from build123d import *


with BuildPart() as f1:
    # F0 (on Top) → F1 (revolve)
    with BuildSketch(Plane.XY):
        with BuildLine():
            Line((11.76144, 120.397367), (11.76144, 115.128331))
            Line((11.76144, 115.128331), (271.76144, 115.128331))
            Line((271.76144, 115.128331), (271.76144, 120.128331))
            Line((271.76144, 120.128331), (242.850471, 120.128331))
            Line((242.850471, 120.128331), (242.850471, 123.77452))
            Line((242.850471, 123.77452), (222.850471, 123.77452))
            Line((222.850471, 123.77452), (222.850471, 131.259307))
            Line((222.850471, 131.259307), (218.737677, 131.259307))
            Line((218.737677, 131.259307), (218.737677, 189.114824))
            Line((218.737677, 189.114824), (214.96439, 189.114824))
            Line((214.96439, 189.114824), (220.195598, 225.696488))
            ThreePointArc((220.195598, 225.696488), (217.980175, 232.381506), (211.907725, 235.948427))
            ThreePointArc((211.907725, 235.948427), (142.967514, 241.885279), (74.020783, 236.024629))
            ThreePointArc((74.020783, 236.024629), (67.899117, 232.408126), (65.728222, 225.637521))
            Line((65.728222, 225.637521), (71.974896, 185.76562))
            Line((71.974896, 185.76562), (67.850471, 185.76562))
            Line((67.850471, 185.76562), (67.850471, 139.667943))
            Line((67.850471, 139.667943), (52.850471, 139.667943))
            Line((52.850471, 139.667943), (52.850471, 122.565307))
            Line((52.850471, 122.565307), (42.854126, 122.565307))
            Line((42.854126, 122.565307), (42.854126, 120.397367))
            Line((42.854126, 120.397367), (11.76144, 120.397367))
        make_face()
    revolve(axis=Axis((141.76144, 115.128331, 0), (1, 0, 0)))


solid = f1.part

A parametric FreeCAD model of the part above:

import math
import FreeCAD as App
import Part
import Sketcher

doc = App.newDocument("Part")
body = doc.addObject("PartDesign::Body", "Body")

# Sketch on XY plane
sketch1 = body.newObject("Sketcher::SketchObject", "Sketch")
sketch1.AttachmentSupport = (doc.getObject("XY_Plane"), [""])
sketch1.MapMode = "FlatFace"
sketch1.addGeometry(Part.LineSegment(App.Vector(11.76144, 120.397367, 0), App.Vector(11.76144, 115.128331, 0)), False)
sketch1.addGeometry(Part.LineSegment(App.Vector(11.76144, 115.128331, 0), App.Vector(271.76144, 115.128331, 0)), False)
sketch1.addGeometry(Part.LineSegment(App.Vector(271.76144, 115.128331, 0), App.Vector(271.76144, 120.128331, 0)), False)
sketch1.addGeometry(Part.LineSegment(App.Vector(271.76144, 120.128331, 0), App.Vector(242.850471, 120.128331, 0)), False)
sketch1.addGeometry(Part.LineSegment(App.Vector(242.850471, 120.128331, 0), App.Vector(242.850471, 123.77452, 0)), False)
sketch1.addGeometry(Part.LineSegment(App.Vector(242.850471, 123.77452, 0), App.Vector(222.850471, 123.77452, 0)), False)
sketch1.addGeometry(Part.LineSegment(App.Vector(222.850471, 123.77452, 0), App.Vector(222.850471, 131.259307, 0)), False)
sketch1.addGeometry(Part.LineSegment(App.Vector(222.850471, 131.259307, 0), App.Vector(218.737677, 131.259307, 0)), False)
sketch1.addGeometry(Part.LineSegment(App.Vector(218.737677, 131.259307, 0), App.Vector(218.737677, 189.114824, 0)), False)
sketch1.addGeometry(Part.LineSegment(App.Vector(218.737677, 189.114824, 0), App.Vector(214.96439, 189.114824, 0)), False)
sketch1.addGeometry(Part.LineSegment(App.Vector(214.96439, 189.114824, 0), App.Vector(220.195598, 225.696488, 0)), False)
sketch1.addGeometry(Part.ArcOfCircle(Part.Circle(App.Vector(210.20353, 226.09471, 0), App.Vector(0, 0, 1), 10.000001), math.radians(-2.28225), math.radians(80.187788)), False)
sketch1.addGeometry(Part.ArcOfCircle(Part.Circle(App.Vector(142.743225, -163.963133, 0), App.Vector(0, 0, 1), 405.848474), math.radians(80.187789), math.radians(99.748883)), False)
sketch1.addGeometry(Part.ArcOfCircle(Part.Circle(App.Vector(75.714087, 226.169036, 0), App.Vector(0, 0, 1), 10), math.radians(99.748887), math.radians(183.04679)), False)
sketch1.addGeometry(Part.LineSegment(App.Vector(65.728222, 225.637521, 0), App.Vector(71.974896, 185.76562, 0)), False)
sketch1.addGeometry(Part.LineSegment(App.Vector(71.974896, 185.76562, 0), App.Vector(67.850471, 185.76562, 0)), False)
sketch1.addGeometry(Part.LineSegment(App.Vector(67.850471, 185.76562, 0), App.Vector(67.850471, 139.667943, 0)), False)
sketch1.addGeometry(Part.LineSegment(App.Vector(67.850471, 139.667943, 0), App.Vector(52.850471, 139.667943, 0)), False)
sketch1.addGeometry(Part.LineSegment(App.Vector(52.850471, 139.667943, 0), App.Vector(52.850471, 122.565307, 0)), False)
sketch1.addGeometry(Part.LineSegment(App.Vector(52.850471, 122.565307, 0), App.Vector(42.854126, 122.565307, 0)), False)
sketch1.addGeometry(Part.LineSegment(App.Vector(42.854126, 122.565307, 0), App.Vector(42.854126, 120.397367, 0)), False)
sketch1.addGeometry(Part.LineSegment(App.Vector(42.854126, 120.397367, 0), App.Vector(11.76144, 120.397367, 0)), False)
sketch1.addGeometry(Part.LineSegment(App.Vector(11.76144, 115.128331, 0), App.Vector(271.76144, 115.128331, 0)), True)  # axis
sketch1.addConstraint(Sketcher.Constraint("Coincident", 0, 2, 1, 1))
sketch1.addConstraint(Sketcher.Constraint("Coincident", 1, 2, 2, 1))
sketch1.addConstraint(Sketcher.Constraint("Coincident", 2, 2, 3, 1))
sketch1.addConstraint(Sketcher.Constraint("Coincident", 3, 2, 4, 1))
sketch1.addConstraint(Sketcher.Constraint("Coincident", 4, 2, 5, 1))
sketch1.addConstraint(Sketcher.Constraint("Coincident", 5, 2, 6, 1))
sketch1.addConstraint(Sketcher.Constraint("Coincident", 6, 2, 7, 1))
sketch1.addConstraint(Sketcher.Constraint("Coincident", 7, 2, 8, 1))
sketch1.addConstraint(Sketcher.Constraint("Coincident", 8, 2, 9, 1))
sketch1.addConstraint(Sketcher.Constraint("Coincident", 9, 2, 10, 1))
sketch1.addConstraint(Sketcher.Constraint("Coincident", 10, 2, 11, 1))
sketch1.addConstraint(Sketcher.Constraint("Tangent", 11, 2, 12, 1))
sketch1.addConstraint(Sketcher.Constraint("Tangent", 12, 2, 13, 1))
sketch1.addConstraint(Sketcher.Constraint("Coincident", 13, 2, 14, 1))
sketch1.addConstraint(Sketcher.Constraint("Coincident", 14, 2, 15, 1))
sketch1.addConstraint(Sketcher.Constraint("Coincident", 15, 2, 16, 1))
sketch1.addConstraint(Sketcher.Constraint("Coincident", 16, 2, 17, 1))
sketch1.addConstraint(Sketcher.Constraint("Coincident", 17, 2, 18, 1))
sketch1.addConstraint(Sketcher.Constraint("Coincident", 18, 2, 19, 1))
sketch1.addConstraint(Sketcher.Constraint("Coincident", 19, 2, 20, 1))
sketch1.addConstraint(Sketcher.Constraint("Coincident", 20, 2, 21, 1))
sketch1.addConstraint(Sketcher.Constraint("Coincident", 21, 2, 0, 1))
sketch1.addConstraint(Sketcher.Constraint("Vertical", 0))
sketch1.addConstraint(Sketcher.Constraint("Horizontal", 1))
sketch1.addConstraint(Sketcher.Constraint("Vertical", 2))
sketch1.addConstraint(Sketcher.Constraint("Horizontal", 3))
sketch1.addConstraint(Sketcher.Constraint("Vertical", 4))
sketch1.addConstraint(Sketcher.Constraint("Horizontal", 5))
sketch1.addConstraint(Sketcher.Constraint("Vertical", 6))
sketch1.addConstraint(Sketcher.Constraint("Horizontal", 7))
sketch1.addConstraint(Sketcher.Constraint("Vertical", 8))
sketch1.addConstraint(Sketcher.Constraint("Horizontal", 9))
sketch1.addConstraint(Sketcher.Constraint("Horizontal", 15))
sketch1.addConstraint(Sketcher.Constraint("Vertical", 16))
sketch1.addConstraint(Sketcher.Constraint("Horizontal", 17))
sketch1.addConstraint(Sketcher.Constraint("Vertical", 18))
sketch1.addConstraint(Sketcher.Constraint("Horizontal", 19))
sketch1.addConstraint(Sketcher.Constraint("Vertical", 20))
sketch1.addConstraint(Sketcher.Constraint("Horizontal", 21))
sketch1.addConstraint(Sketcher.Constraint("Horizontal", 22))
sketch1.addConstraint(Sketcher.Constraint("Coincident", 22, 1, 0, 2))
sketch1.addConstraint(Sketcher.Constraint("Equal", 11, 13))
sketch1.addConstraint(Sketcher.Constraint("Vertical", 2, 2, 22, 2))
sketch1.addConstraint(Sketcher.Constraint("Radius", 11, 10.000001))
sketch1.addConstraint(Sketcher.Constraint("DistanceX", 1, 1, 1, 2, 260.0))
sketch1.addConstraint(Sketcher.Constraint("DistanceX", 5, 2, 5, 1, 20.0))
sketch1.addConstraint(Sketcher.Constraint("DistanceX", 17, 2, 17, 1, 15.0))
sketch1.addConstraint(Sketcher.Constraint("DistanceY", 2, 1, 2, 2, 5.0))
sketch1.addConstraint(Sketcher.Constraint("Radius", 12, 405.848474))
sketch1.addConstraint(Sketcher.Constraint("DistanceX", 3, 2, 3, 1, 28.910969))
sketch1.addConstraint(Sketcher.Constraint("DistanceY", 4, 1, 4, 2, 3.646189))
sketch1.addConstraint(Sketcher.Constraint("DistanceY", 20, 2, 20, 1, 2.16794))
sketch1.addConstraint(Sketcher.Constraint("DistanceY", 11, 2, 12, 2, 0.076202))
sketch1.addConstraint(Sketcher.Constraint("DistanceY", 14, 2, 13, 2, 39.871901))
sketch1.addConstraint(Sketcher.Constraint("DistanceX", 7, 2, 7, 1, 4.112794))
sketch1.addConstraint(Sketcher.Constraint("DistanceX", 9, 2, 9, 1, 3.773287))
sketch1.addConstraint(Sketcher.Constraint("DistanceX", 15, 2, 15, 1, 4.124425))
sketch1.addConstraint(Sketcher.Constraint("DistanceX", 19, 2, 19, 1, 9.996345))
sketch1.addConstraint(Sketcher.Constraint("DistanceX", 21, 2, 21, 1, 31.092686))
sketch1.addConstraint(Sketcher.Constraint("DistanceY", 0, 2, 0, 1, 5.269036))
sketch1.addConstraint(Sketcher.Constraint("DistanceY", 6, 1, 6, 2, 7.484787))
sketch1.addConstraint(Sketcher.Constraint("DistanceY", 8, 1, 8, 2, 57.855517))
sketch1.addConstraint(Sketcher.Constraint("DistanceY", 16, 2, 16, 1, 46.097677))
sketch1.addConstraint(Sketcher.Constraint("DistanceY", 18, 2, 18, 1, 17.102636))
sketch1.addConstraint(Sketcher.Constraint("DistanceX", -1, 1, 11, 3, 210.20353))
sketch1.addConstraint(Sketcher.Constraint("DistanceY", -1, 1, 11, 3, 226.09471))
sketch1.addConstraint(Sketcher.Constraint("DistanceX", -1, 1, 0, 2, 11.76144))
sketch1.addConstraint(Sketcher.Constraint("DistanceY", -1, 1, 0, 2, 115.128331))
sketch1.addConstraint(Sketcher.Constraint("DistanceX", 13, 3, 12, 3, 67.029139))
sketch1.addConstraint(Sketcher.Constraint("DistanceX", 11, 3, 10, 2, 9.992068))
revolution = body.newObject("PartDesign::Revolution", "Revolution")
revolution.Profile = sketch1
revolution.ReferenceAxis = (sketch1, ["Axis0"])
revolution.Angle = 360

doc.recompute()
